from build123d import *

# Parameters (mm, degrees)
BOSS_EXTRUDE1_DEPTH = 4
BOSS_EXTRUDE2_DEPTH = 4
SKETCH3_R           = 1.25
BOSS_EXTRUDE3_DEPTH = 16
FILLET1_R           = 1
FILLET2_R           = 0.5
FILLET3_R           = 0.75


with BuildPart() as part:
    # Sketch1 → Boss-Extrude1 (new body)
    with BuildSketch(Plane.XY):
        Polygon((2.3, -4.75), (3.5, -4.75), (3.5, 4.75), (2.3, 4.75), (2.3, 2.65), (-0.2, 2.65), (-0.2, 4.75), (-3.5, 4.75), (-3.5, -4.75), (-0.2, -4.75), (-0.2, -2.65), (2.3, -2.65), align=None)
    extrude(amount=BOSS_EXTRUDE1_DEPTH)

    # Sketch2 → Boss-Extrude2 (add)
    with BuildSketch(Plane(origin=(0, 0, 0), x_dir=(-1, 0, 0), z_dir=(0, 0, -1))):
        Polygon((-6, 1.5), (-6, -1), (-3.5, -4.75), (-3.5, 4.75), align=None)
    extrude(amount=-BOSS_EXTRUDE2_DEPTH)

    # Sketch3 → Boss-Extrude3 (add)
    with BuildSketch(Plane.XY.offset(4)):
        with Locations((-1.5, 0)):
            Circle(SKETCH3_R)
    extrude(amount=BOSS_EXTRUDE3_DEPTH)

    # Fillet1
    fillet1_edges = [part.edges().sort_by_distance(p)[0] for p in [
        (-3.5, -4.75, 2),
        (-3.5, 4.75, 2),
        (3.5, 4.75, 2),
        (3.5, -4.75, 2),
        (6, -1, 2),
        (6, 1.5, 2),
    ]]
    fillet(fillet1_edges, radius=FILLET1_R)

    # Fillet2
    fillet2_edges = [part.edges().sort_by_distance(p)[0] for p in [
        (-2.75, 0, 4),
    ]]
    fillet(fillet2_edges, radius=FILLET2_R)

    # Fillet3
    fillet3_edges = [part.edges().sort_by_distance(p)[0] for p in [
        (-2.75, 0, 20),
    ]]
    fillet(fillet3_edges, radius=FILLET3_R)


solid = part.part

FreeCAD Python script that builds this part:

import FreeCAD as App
import Part
import Sketcher
Q = App.Units.Quantity


def edges_at(feature, points):
    """Names of the edges that pass closest to the given points."""
    edges = feature.Shape.Edges
    near = lambda p: min(range(len(edges)), key=lambda i: edges[i].distToShape(Part.Vertex(*p))[0])
    return sorted({f"Edge{near(p) + 1}" for p in points})

doc = App.newDocument("Part")
body = doc.addObject("PartDesign::Body", "Body")

sketch1 = body.newObject("Sketcher::SketchObject", "Sketch")
sketch1.AttachmentSupport = (doc.getObject("XY_Plane"), [""])
sketch1.MapMode = "FlatFace"
sketch1.addGeometry([
    Part.LineSegment(App.Vector(2.3, -4.8, 0), App.Vector(3.5, -4.8, 0)),
    Part.LineSegment(App.Vector(3.5, -4.8, 0), App.Vector(3.5, 4.8, 0)),
    Part.LineSegment(App.Vector(3.5, 4.8, 0), App.Vector(2.3, 4.8, 0)),
    Part.LineSegment(App.Vector(2.3, 4.8, 0), App.Vector(2.3, 2.6, 0)),
    Part.LineSegment(App.Vector(2.3, 2.6, 0), App.Vector(-0.2, 2.6, 0)),
    Part.LineSegment(App.Vector(-0.2, 2.6, 0), App.Vector(-0.2, 4.8, 0)),
    Part.LineSegment(App.Vector(-0.2, 4.8, 0), App.Vector(-3.5, 4.8, 0)),
    Part.LineSegment(App.Vector(-3.5, 4.8, 0), App.Vector(-3.5, -4.8, 0)),
    Part.LineSegment(App.Vector(-3.5, -4.8, 0), App.Vector(-0.2, -4.8, 0)),
    Part.LineSegment(App.Vector(-0.2, -4.8, 0), App.Vector(-0.2, -2.6, 0)),
    Part.LineSegment(App.Vector(-0.2, -2.6, 0), App.Vector(2.3, -2.6, 0)),
    Part.LineSegment(App.Vector(2.3, -2.6, 0), App.Vector(2.3, -4.8, 0)),
], False)
sketch1.addConstraint([
    Sketcher.Constraint("Coincident", 0, 2, 1, 1),
    Sketcher.Constraint("Coincident", 1, 2, 2, 1),
    Sketcher.Constraint("Coincident", 2, 2, 3, 1),
    Sketcher.Constraint("Coincident", 3, 2, 4, 1),
    Sketcher.Constraint("Coincident", 4, 2, 5, 1),
    Sketcher.Constraint("Coincident", 5, 2, 6, 1),
    Sketcher.Constraint("Coincident", 6, 2, 7, 1),
    Sketcher.Constraint("Coincident", 7, 2, 8, 1),
    Sketcher.Constraint("Coincident", 8, 2, 9, 1),
    Sketcher.Constraint("Coincident", 9, 2, 10, 1),
    Sketcher.Constraint("Coincident", 10, 2, 11, 1),
    Sketcher.Constraint("Coincident", 11, 2, 0, 1),
    Sketcher.Constraint("Horizontal", 0),
    Sketcher.Constraint("Vertical", 1),
    Sketcher.Constraint("Horizontal", 2),
    Sketcher.Constraint("Vertical", 3),
    Sketcher.Constraint("Horizontal", 4),
    Sketcher.Constraint("Vertical", 5),
    Sketcher.Constraint("Horizontal", 6),
    Sketcher.Constraint("Vertical", 7),
    Sketcher.Constraint("Horizontal", 8),
    Sketcher.Constraint("Vertical", 9),
    Sketcher.Constraint("Horizontal", 10),
    Sketcher.Constraint("Vertical", 11),
    Sketcher.Constraint("Symmetric", 0, 2, 6, 2, -1, 1),
    Sketcher.Constraint("Symmetric", 5, 2, 8, 2, -1),
    Sketcher.Constraint("Symmetric", 3, 2, 10, 2, -1),
    Sketcher.Constraint("Horizontal", 2, 2, 5, 2),
    Sketcher.Constraint("DistanceX", 0, 1, 0, 2, Q("1.2 mm")),
    Sketcher.Constraint("DistanceX", 4, 2, 4, 1, Q("2.5 mm")),
    Sketcher.Constraint("DistanceX", 6, 2, 6, 1, Q("3.3 mm")),
    Sketcher.Constraint("DistanceY", 1, 1, 1, 2, Q("9.5 mm")),
    Sketcher.Constraint("DistanceY", 3, 2, 3, 1, Q("2.1 mm")),
])
pad1 = body.newObject("PartDesign::Pad", "Pad")
pad1.Profile = sketch1
pad1.Length = 4

sketch2 = body.newObject("Sketcher::SketchObject", "Sketch001")
sketch2.AttachmentSupport = (doc.getObject("XY_Plane"), [""])
sketch2.MapMode = "FlatFace"
sketch2.addGeometry([
    Part.LineSegment(App.Vector(6, 1.5, 0), App.Vector(6, -1, 0)),
    Part.LineSegment(App.Vector(6, -1, 0), App.Vector(3.5, -4.8, 0)),
    Part.LineSegment(App.Vector(3.5, -4.8, 0), App.Vector(3.5, 4.8, 0)),
    Part.LineSegment(App.Vector(3.5, 4.8, 0), App.Vector(6, 1.5, 0)),
], False)
sketch2.addConstraint([
    Sketcher.Constraint("Coincident", 0, 2, 1, 1),
    Sketcher.Constraint("Coincident", 1, 2, 2, 1),
    Sketcher.Constraint("Coincident", 2, 2, 3, 1),
    Sketcher.Constraint("Coincident", 3, 2, 0, 1),
    Sketcher.Constraint("Vertical", 0),
    Sketcher.Constraint("Vertical", 2),
    Sketcher.Constraint("DistanceY", 0, 2, 0, 1, Q("2.5 mm")),
    Sketcher.Constraint("DistanceY", 2, 1, 2, 2, Q("9.5 mm")),
    Sketcher.Constraint("DistanceX", -1, 1, 0, 2, Q("6 mm")),
    Sketcher.Constraint("DistanceY", 0, 2, -1, 1, Q("1 mm")),
    Sketcher.Constraint("DistanceX", -1, 1, 1, 2, Q("3.5 mm")),
    Sketcher.Constraint("DistanceY", 1, 2, -1, 1, Q("4.75 mm")),
])
pad2 = body.newObject("PartDesign::Pad", "Pad001")
pad2.Profile = sketch2
pad2.Length = 4

sketch3 = body.newObject("Sketcher::SketchObject", "Sketch002")
sketch3.AttachmentSupport = (doc.getObject("XY_Plane"), [""])
sketch3.MapMode = "FlatFace"
sketch3.AttachmentOffset = App.Placement(App.Vector(0, 0, 4), App.Rotation())
sketch3.addGeometry(Part.Circle(App.Vector(-1.5, 0, 0), App.Vector(0, 0, 1), 1.2), False)
sketch3.addConstraint([
    Sketcher.Constraint("PointOnObject", 0, 3, -1),
    Sketcher.Constraint("Diameter", 0, Q("2.5 mm")),
    Sketcher.Constraint("DistanceX", 0, 3, -1, 1, Q("1.5 mm")),
])
pad3 = body.newObject("PartDesign::Pad", "Pad002")
pad3.Profile = sketch3
pad3.Length = 16
doc.recompute()

fillet = body.newObject("PartDesign::Fillet", "Fillet")
fillet.Base = (pad3, edges_at(pad3, [
    (-3.5, -4.75, 2),
    (-3.5, 4.75, 2),
    (3.5, 4.75, 2),
    (3.5, -4.75, 2),
    (6, -1, 2),
    (6, 1.5, 2),
]))
fillet.Radius = 1
doc.recompute()

fillet2 = body.newObject("PartDesign::Fillet", "Fillet001")
fillet2.Base = (fillet, edges_at(fillet, [(-2.75, 0, 4)]))
fillet2.Radius = 0.5
doc.recompute()

fillet3 = body.newObject("PartDesign::Fillet", "Fillet002")
fillet3.Base = (fillet2, edges_at(fillet2, [(-2.75, 0, 20)]))
fillet3.Radius = 0.75

doc.recompute()
